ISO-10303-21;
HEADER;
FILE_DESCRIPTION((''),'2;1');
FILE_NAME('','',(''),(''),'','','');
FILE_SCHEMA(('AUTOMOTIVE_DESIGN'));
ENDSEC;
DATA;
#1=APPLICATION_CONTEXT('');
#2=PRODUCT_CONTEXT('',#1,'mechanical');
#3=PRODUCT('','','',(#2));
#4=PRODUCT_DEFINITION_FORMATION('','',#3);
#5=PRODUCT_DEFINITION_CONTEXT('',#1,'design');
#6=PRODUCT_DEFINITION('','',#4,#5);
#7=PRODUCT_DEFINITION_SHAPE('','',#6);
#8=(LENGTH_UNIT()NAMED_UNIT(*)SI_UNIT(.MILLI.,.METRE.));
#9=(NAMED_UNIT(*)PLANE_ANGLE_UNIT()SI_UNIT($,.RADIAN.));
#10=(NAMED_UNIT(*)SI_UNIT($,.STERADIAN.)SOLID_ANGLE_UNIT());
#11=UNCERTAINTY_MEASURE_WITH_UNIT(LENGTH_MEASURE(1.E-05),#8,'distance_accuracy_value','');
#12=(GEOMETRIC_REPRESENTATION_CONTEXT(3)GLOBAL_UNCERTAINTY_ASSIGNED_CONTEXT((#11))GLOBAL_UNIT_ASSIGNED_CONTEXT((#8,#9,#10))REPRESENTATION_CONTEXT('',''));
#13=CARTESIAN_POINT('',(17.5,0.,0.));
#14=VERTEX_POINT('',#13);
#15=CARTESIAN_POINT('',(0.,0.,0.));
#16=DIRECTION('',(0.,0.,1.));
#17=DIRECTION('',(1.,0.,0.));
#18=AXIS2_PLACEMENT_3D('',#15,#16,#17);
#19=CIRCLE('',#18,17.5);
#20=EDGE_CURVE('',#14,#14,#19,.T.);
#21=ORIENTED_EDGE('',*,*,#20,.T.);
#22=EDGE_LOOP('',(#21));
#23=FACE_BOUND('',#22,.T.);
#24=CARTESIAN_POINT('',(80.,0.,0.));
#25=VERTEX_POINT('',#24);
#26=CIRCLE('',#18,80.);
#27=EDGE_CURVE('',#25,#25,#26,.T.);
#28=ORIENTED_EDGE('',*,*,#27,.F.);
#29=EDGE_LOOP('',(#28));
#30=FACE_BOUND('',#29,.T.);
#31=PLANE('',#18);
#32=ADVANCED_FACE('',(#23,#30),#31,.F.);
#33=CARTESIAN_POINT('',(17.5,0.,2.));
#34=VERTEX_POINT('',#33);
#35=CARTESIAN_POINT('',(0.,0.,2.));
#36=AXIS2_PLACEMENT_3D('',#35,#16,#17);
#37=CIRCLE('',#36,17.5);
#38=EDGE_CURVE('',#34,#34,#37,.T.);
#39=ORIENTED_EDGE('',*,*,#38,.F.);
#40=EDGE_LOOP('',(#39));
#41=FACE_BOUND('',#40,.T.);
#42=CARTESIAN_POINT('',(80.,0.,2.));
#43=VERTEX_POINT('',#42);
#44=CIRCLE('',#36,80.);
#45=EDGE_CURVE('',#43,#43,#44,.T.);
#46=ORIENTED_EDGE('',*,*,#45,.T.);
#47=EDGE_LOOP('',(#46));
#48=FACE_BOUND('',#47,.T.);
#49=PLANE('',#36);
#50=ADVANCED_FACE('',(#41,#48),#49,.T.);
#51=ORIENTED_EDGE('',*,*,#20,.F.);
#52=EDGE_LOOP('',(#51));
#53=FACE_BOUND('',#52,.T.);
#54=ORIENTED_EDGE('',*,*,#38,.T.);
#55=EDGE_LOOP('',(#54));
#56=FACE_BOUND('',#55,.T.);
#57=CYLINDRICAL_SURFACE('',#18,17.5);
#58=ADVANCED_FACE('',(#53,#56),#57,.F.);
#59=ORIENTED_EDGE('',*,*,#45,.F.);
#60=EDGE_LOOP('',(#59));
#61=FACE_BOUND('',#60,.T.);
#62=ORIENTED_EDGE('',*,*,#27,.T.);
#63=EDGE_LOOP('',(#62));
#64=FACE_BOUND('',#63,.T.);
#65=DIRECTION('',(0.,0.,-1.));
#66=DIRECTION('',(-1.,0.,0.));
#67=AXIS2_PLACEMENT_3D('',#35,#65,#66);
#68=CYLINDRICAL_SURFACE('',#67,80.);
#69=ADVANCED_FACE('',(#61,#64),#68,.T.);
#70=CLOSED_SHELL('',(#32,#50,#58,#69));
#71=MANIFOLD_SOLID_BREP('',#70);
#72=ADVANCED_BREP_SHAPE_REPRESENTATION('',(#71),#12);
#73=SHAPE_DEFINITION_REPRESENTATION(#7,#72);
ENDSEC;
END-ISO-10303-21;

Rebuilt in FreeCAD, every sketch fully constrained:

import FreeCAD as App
import Part
import Sketcher

V = App.Vector

doc = App.newDocument("Part")
body = doc.addObject("PartDesign::Body", "Body")

# Sketch on XY plane
sketch1 = body.newObject("Sketcher::SketchObject", "Sketch")
sketch1.AttachmentSupport = (doc.getObject("XY_Plane"), [""])
sketch1.MapMode = "FlatFace"
sketch1.addGeometry(Part.Circle(V(0, 0, 0), V(0, 0, 1), 80), False)
sketch1.addConstraint(Sketcher.Constraint("Coincident", 0, 3, -1, 1))
sketch1.addConstraint(Sketcher.Constraint("Diameter", 0, 160.0))
pad1 = body.newObject("PartDesign::Pad", "Pad")
pad1.Profile = sketch1
pad1.Length = 2

# Sketch on XY plane
sketch2 = body.newObject("Sketcher::SketchObject", "Sketch001")
sketch2.AttachmentSupport = (doc.getObject("XY_Plane"), [""])
sketch2.MapMode = "FlatFace"
sketch2.AttachmentOffset = App.Placement(V(0, 0, 2), App.Rotation())
sketch2.addGeometry(Part.Circle(V(0, 0, 0), V(0, 0, 1), 18), False)
sketch2.addConstraint(Sketcher.Constraint("Coincident", 0, 3, -1, 1))
sketch2.addConstraint(Sketcher.Constraint("Diameter", 0, 35.0))
pocket1 = body.newObject("PartDesign::Pocket", "Pocket")
pocket1.Profile = sketch2
pocket1.Length = 2

doc.recompute()
